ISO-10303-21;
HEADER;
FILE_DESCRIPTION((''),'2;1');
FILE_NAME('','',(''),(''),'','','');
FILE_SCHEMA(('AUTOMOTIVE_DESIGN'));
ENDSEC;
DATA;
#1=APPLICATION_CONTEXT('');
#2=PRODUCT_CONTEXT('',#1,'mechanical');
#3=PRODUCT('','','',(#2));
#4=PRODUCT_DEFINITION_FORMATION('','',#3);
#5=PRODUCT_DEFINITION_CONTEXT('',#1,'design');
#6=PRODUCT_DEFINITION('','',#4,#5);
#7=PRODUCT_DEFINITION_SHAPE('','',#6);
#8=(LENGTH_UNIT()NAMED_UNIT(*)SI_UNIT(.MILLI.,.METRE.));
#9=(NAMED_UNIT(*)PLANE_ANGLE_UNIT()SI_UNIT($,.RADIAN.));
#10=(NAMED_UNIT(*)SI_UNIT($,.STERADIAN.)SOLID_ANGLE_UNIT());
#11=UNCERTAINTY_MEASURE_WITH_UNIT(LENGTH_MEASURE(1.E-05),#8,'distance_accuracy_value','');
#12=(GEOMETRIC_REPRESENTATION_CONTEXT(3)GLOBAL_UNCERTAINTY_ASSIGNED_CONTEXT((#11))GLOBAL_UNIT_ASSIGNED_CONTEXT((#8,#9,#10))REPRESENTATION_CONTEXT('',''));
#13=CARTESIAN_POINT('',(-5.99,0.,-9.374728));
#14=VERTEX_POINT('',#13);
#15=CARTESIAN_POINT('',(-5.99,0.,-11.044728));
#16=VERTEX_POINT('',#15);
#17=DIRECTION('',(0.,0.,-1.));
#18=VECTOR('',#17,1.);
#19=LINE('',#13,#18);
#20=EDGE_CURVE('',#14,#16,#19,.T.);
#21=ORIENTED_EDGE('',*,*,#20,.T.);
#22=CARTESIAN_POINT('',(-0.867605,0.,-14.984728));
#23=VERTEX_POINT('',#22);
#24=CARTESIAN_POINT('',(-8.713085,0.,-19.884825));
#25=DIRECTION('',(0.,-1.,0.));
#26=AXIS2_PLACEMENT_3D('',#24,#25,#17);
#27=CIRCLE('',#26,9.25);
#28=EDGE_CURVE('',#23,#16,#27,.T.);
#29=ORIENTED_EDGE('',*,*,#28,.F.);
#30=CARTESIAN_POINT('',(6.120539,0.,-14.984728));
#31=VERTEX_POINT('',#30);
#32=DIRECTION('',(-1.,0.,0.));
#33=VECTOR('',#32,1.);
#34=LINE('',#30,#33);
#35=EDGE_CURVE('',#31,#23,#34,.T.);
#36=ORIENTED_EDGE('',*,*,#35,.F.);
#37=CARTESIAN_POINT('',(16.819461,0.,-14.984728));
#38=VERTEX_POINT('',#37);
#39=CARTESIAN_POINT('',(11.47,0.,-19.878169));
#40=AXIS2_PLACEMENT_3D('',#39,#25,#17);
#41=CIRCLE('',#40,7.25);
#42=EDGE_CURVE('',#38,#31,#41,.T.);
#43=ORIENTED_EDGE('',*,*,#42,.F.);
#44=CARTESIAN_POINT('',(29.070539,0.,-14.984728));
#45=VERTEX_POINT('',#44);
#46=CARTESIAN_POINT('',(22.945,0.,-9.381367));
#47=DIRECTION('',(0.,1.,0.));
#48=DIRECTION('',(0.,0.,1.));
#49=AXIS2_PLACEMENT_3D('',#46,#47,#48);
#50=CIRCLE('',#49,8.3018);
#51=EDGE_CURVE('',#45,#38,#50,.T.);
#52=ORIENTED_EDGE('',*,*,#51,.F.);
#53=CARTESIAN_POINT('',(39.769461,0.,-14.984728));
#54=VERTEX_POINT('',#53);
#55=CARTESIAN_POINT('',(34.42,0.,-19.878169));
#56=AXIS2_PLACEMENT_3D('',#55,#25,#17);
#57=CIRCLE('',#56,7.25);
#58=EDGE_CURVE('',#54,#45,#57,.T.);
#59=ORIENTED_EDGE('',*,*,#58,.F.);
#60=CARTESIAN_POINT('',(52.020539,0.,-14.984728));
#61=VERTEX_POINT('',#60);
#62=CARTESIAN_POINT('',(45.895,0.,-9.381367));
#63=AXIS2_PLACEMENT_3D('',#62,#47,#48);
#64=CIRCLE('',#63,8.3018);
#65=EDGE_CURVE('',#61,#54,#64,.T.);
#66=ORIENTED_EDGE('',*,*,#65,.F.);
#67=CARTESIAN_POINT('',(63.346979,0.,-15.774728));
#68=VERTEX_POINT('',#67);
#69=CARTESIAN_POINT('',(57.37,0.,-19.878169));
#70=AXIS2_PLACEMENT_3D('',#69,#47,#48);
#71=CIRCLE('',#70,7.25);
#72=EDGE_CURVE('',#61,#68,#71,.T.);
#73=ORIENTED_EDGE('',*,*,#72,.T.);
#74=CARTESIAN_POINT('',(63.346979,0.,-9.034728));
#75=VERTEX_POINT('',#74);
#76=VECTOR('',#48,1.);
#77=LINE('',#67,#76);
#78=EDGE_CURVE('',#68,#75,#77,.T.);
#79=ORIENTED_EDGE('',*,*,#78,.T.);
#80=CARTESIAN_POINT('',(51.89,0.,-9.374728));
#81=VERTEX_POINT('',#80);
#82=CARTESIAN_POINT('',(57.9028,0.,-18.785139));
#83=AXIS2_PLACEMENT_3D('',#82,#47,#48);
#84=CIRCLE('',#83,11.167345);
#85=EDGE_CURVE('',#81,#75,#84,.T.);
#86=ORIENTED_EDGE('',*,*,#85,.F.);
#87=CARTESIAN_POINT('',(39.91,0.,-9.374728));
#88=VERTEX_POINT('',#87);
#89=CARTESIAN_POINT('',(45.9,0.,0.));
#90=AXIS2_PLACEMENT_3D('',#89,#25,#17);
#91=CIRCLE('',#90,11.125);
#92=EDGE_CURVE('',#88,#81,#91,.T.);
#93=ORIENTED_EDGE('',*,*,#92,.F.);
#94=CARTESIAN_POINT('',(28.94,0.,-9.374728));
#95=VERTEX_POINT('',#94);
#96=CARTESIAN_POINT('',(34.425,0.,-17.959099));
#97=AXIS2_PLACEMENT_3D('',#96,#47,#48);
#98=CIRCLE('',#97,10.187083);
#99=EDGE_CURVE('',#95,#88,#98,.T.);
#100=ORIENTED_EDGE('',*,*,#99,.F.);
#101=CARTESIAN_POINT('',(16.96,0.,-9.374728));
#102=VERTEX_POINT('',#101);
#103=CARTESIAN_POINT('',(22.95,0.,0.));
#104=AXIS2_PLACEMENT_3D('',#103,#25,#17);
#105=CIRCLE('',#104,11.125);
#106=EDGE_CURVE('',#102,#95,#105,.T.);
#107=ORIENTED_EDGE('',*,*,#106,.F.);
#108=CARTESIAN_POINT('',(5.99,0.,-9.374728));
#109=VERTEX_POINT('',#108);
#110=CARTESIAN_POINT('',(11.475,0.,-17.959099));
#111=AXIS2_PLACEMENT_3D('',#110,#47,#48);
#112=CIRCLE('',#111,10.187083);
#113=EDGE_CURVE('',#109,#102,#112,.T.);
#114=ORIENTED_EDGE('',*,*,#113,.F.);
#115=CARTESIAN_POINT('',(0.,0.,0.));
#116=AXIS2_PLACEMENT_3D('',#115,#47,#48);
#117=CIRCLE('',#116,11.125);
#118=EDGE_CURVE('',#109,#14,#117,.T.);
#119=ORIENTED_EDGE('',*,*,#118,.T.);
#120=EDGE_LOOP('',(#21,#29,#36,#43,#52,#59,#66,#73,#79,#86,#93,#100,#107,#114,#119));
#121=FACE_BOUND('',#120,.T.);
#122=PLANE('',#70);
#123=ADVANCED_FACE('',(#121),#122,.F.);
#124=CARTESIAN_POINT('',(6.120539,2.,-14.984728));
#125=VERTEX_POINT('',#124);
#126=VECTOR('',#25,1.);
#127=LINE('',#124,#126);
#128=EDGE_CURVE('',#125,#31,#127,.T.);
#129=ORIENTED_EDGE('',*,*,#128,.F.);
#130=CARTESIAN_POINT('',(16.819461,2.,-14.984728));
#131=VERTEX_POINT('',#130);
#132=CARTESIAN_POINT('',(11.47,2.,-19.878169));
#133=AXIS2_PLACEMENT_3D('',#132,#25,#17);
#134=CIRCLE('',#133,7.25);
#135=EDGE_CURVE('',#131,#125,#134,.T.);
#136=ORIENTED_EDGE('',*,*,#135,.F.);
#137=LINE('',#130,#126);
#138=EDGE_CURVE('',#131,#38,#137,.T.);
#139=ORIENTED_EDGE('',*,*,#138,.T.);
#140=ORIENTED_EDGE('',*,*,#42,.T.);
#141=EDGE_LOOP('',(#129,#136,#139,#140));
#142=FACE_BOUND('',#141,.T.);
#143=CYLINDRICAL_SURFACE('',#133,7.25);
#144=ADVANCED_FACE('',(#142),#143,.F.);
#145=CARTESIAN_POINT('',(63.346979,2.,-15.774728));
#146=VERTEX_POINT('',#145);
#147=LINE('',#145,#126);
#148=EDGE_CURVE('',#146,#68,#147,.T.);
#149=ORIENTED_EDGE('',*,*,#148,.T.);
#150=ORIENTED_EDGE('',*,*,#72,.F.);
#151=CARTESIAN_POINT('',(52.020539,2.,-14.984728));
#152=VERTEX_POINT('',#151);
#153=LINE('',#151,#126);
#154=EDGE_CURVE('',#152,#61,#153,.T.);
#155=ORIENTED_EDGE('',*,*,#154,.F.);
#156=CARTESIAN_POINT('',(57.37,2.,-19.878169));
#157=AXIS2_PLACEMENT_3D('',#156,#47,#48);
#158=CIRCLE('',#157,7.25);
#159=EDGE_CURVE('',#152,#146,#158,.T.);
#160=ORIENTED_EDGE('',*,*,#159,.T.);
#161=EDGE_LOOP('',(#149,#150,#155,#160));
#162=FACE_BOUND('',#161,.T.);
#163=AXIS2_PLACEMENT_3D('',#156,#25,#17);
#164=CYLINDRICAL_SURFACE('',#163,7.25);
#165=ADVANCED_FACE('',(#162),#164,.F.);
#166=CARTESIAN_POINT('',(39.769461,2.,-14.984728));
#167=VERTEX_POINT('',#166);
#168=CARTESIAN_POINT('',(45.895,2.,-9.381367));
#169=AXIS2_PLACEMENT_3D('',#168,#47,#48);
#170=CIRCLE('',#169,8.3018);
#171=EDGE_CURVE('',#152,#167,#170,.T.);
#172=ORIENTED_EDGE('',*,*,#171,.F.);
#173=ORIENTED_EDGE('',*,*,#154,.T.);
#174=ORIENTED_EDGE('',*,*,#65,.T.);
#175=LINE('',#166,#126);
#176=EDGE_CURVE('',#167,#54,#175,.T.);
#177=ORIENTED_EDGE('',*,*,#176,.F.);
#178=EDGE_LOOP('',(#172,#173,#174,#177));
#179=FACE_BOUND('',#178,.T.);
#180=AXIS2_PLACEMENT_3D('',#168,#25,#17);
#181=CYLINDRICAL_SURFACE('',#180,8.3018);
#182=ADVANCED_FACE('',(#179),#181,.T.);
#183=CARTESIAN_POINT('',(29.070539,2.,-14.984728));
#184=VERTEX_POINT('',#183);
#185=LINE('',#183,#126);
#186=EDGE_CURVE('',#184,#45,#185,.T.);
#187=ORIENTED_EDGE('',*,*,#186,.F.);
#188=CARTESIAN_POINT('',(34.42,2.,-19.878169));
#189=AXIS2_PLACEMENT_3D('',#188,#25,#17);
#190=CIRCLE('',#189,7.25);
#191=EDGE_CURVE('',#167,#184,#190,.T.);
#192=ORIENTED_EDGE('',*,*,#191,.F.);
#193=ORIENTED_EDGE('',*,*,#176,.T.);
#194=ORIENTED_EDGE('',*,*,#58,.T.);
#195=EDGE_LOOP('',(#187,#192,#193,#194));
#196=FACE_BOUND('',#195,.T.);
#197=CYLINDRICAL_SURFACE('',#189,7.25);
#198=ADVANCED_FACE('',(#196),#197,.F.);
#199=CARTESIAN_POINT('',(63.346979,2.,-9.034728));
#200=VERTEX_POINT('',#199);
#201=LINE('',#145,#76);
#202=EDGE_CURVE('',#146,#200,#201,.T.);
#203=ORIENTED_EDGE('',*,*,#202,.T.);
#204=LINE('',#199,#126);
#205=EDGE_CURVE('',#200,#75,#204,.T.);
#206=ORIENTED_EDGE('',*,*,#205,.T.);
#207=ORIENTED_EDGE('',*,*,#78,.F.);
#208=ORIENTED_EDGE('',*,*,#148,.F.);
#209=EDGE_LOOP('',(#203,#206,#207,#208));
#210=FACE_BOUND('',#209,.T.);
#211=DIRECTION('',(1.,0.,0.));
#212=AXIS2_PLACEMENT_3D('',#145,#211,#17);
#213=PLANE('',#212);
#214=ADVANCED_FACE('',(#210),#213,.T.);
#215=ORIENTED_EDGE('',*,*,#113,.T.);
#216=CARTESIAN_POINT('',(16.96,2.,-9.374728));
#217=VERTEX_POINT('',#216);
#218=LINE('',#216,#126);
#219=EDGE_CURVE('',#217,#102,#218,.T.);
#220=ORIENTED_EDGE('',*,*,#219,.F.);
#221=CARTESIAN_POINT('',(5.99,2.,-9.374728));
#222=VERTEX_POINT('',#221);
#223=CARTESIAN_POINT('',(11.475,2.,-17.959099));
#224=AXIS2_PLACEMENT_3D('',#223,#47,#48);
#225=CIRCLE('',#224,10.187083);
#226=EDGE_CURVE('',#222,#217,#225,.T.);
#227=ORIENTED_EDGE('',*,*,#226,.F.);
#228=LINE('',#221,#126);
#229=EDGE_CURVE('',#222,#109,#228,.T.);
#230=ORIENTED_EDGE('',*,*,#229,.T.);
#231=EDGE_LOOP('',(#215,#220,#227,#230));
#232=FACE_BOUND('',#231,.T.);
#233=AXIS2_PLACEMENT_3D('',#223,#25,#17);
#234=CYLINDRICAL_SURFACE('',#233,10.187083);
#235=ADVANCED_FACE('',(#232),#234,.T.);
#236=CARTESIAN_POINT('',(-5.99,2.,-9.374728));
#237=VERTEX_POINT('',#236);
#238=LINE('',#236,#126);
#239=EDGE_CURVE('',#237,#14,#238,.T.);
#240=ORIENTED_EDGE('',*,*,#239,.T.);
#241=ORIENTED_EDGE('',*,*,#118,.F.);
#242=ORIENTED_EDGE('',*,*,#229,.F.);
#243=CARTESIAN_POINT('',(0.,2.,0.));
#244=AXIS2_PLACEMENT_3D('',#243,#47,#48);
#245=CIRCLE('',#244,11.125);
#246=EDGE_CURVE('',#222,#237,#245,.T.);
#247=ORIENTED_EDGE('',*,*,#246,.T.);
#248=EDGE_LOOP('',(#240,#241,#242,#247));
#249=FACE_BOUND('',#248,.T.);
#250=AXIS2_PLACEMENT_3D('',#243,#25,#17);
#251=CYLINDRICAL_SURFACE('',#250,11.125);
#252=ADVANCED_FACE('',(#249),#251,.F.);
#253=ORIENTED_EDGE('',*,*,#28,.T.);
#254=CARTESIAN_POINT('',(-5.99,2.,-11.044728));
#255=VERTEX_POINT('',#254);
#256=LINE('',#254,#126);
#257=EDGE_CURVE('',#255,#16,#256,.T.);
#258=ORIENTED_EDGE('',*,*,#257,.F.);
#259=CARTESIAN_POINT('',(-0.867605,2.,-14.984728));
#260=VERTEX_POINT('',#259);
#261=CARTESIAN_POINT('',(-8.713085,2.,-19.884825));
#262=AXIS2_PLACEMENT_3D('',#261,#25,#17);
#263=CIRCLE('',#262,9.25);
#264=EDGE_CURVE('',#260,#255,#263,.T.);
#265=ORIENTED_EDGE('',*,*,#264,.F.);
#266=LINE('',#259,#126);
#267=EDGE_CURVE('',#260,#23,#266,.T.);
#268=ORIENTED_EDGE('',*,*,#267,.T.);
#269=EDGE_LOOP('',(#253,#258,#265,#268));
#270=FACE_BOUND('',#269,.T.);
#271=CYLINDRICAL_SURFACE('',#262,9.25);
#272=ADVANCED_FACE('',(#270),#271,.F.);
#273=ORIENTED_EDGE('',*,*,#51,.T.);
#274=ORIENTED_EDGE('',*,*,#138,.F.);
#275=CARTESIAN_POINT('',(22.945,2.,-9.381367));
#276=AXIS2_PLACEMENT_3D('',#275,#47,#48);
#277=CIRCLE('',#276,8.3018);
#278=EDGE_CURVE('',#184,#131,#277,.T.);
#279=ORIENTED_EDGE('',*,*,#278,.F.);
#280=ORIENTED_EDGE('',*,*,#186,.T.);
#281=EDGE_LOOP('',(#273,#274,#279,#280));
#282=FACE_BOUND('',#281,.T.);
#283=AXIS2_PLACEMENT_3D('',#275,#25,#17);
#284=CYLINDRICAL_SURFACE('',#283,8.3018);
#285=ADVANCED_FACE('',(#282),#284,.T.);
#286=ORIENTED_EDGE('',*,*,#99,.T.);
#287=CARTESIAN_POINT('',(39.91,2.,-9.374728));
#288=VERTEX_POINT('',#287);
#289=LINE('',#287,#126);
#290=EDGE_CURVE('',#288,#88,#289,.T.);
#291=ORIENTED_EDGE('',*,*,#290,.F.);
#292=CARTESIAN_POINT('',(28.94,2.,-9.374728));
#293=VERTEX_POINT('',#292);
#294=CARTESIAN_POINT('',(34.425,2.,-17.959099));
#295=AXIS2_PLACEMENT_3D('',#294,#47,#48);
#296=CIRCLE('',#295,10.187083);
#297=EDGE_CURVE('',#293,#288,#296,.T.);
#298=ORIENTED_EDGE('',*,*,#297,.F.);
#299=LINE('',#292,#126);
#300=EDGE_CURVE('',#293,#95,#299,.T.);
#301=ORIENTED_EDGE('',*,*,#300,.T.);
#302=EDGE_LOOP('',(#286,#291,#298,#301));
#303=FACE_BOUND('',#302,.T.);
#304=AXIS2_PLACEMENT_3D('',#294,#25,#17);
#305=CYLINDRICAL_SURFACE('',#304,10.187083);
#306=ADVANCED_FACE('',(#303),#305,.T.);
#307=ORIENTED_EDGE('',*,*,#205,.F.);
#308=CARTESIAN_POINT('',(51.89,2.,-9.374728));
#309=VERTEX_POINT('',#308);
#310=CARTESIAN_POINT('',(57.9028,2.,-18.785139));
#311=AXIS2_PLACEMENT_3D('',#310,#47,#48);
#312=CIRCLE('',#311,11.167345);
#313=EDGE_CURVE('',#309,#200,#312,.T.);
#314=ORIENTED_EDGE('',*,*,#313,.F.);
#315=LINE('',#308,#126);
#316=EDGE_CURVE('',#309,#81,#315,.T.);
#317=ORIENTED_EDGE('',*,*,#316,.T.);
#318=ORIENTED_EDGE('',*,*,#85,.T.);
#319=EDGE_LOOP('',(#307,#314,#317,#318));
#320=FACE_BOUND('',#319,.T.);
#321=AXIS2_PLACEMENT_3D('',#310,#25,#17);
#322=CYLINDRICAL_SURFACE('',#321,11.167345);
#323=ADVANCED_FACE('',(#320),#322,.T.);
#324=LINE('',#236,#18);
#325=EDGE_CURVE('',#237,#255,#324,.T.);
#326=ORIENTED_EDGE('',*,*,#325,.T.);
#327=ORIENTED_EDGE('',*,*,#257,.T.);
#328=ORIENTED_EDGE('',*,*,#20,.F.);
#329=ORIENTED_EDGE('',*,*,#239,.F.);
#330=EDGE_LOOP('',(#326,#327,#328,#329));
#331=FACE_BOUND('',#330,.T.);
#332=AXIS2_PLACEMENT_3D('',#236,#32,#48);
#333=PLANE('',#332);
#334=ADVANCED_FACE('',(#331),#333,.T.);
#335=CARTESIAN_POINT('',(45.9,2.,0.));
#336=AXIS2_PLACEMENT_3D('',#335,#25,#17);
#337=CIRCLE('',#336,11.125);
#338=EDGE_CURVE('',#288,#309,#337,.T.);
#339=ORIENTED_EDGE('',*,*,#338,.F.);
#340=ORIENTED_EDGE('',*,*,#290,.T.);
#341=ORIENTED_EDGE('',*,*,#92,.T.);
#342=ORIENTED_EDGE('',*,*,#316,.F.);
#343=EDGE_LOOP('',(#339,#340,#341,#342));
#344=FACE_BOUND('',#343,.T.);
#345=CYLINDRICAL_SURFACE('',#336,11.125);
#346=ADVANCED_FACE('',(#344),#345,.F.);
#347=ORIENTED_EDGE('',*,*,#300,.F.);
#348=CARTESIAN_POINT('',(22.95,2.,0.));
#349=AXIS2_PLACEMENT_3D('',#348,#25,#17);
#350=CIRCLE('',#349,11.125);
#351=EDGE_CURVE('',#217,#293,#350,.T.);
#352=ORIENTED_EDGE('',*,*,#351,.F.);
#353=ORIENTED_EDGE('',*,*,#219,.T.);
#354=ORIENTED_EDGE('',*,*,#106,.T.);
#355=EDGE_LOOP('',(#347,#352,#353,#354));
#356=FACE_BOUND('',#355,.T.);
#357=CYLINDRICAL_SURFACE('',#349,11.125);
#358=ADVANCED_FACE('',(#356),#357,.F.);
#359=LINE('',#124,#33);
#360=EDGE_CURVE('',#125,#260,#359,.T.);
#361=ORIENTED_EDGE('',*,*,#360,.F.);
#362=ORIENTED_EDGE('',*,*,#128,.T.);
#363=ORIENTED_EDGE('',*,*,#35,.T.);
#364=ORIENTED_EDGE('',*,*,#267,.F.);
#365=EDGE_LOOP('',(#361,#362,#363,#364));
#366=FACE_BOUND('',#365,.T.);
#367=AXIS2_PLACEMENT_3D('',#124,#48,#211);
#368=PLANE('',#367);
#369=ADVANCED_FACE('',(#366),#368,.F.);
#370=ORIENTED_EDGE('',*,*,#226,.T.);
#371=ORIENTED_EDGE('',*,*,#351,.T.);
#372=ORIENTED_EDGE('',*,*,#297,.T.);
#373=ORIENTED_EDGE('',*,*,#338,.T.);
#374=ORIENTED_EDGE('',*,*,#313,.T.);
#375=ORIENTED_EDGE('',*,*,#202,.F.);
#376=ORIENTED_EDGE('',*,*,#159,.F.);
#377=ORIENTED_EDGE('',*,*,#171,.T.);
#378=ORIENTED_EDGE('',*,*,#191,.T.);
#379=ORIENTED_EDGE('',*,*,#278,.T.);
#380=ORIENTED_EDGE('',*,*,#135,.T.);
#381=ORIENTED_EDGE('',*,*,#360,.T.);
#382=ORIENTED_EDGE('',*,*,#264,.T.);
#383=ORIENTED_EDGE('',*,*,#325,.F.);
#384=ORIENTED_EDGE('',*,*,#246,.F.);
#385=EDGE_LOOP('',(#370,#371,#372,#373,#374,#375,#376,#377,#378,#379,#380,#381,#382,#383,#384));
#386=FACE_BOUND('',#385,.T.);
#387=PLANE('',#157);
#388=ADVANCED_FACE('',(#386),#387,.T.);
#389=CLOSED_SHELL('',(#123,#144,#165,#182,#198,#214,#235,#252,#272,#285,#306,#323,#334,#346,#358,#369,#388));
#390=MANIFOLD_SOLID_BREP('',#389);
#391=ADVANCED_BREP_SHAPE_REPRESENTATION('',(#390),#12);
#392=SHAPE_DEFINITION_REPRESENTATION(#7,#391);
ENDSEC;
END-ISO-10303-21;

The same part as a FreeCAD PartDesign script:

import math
import FreeCAD as App
import Part
import Sketcher
Q = App.Units.Quantity

doc = App.newDocument("Part")
body = doc.addObject("PartDesign::Body", "Body")

sketch1 = body.newObject("Sketcher::SketchObject", "Sketch")
sketch1.AttachmentSupport = (doc.getObject("XZ_Plane"), [""])
sketch1.MapMode = "FlatFace"
sketch1.addGeometry(Part.LineSegment(App.Vector(63.346979, -9.034728, 0), App.Vector(63.346979, -15.774728, 0)), False)
sketch1.addGeometry(Part.ArcOfCircle(Part.Circle(App.Vector(57.37, -19.878169, 0), App.Vector(0, 0, 1), 7.25), math.radians(34.471196), math.radians(137.54916)), False)
sketch1.addGeometry(Part.ArcOfCircle(Part.Circle(App.Vector(45.895, -9.381367, 0), App.Vector(0, 0, 1), 8.3018), math.radians(-137.54916), math.radians(-42.45084)), False)
sketch1.addGeometry(Part.ArcOfCircle(Part.Circle(App.Vector(34.42, -19.878169, 0), App.Vector(0, 0, 1), 7.25), math.radians(42.45084), math.radians(137.54916)), False)
sketch1.addGeometry(Part.ArcOfCircle(Part.Circle(App.Vector(22.945, -9.381367, 0), App.Vector(0, 0, 1), 8.3018), math.radians(-137.54916), math.radians(-42.45084)), False)
sketch1.addGeometry(Part.ArcOfCircle(Part.Circle(App.Vector(11.47, -19.878169, 0), App.Vector(0, 0, 1), 7.25), math.radians(42.45084), math.radians(137.54916)), False)
sketch1.addGeometry(Part.LineSegment(App.Vector(6.120539, -14.984728, 0), App.Vector(-0.867605, -14.984728, 0)), False)
sketch1.addGeometry(Part.ArcOfCircle(Part.Circle(App.Vector(-8.713085, -19.884825, 0), App.Vector(0, 0, 1), 9.25), math.radians(31.987901), math.radians(72.879183)), False)
sketch1.addGeometry(Part.LineSegment(App.Vector(-5.99, -11.044728, 0), App.Vector(-5.99, -9.374728, 0)), False)
sketch1.addGeometry(Part.ArcOfCircle(Part.Circle(App.Vector(0, 0, 0), App.Vector(0, 0, 1), 11.125), math.radians(-122.57662), math.radians(-57.42338)), False)
sketch1.addGeometry(Part.ArcOfCircle(Part.Circle(App.Vector(11.475, -17.959099, 0), App.Vector(0, 0, 1), 10.187083), math.radians(57.42338), math.radians(122.57662)), False)
sketch1.addGeometry(Part.ArcOfCircle(Part.Circle(App.Vector(22.95, 0, 0), App.Vector(0, 0, 1), 11.125), math.radians(-122.57662), math.radians(-57.42338)), False)
sketch1.addGeometry(Part.ArcOfCircle(Part.Circle(App.Vector(34.425, -17.959099, 0), App.Vector(0, 0, 1), 10.187083), math.radians(57.42338), math.radians(122.57662)), False)
sketch1.addGeometry(Part.ArcOfCircle(Part.Circle(App.Vector(45.9, 0, 0), App.Vector(0, 0, 1), 11.125), math.radians(-122.57662), math.radians(-57.42338)), False)
sketch1.addGeometry(Part.ArcOfCircle(Part.Circle(App.Vector(57.9028, -18.785139, 0), App.Vector(0, 0, 1), 11.167345), math.radians(60.823029), math.radians(122.57662)), False)
sketch1.addConstraint(Sketcher.Constraint("Coincident", 0, 2, 1, 1))
sketch1.addConstraint(Sketcher.Constraint("Tangent", 1, 2, 2, 2))
sketch1.addConstraint(Sketcher.Constraint("Tangent", 2, 1, 3, 1))
sketch1.addConstraint(Sketcher.Constraint("Tangent", 3, 2, 4, 2))
sketch1.addConstraint(Sketcher.Constraint("Tangent", 4, 1, 5, 1))
sketch1.addConstraint(Sketcher.Constraint("Coincident", 5, 2, 6, 1))
sketch1.addConstraint(Sketcher.Constraint("Coincident", 6, 2, 7, 1))
sketch1.addConstraint(Sketcher.Constraint("Coincident", 7, 2, 8, 1))
sketch1.addConstraint(Sketcher.Constraint("Coincident", 8, 2, 9, 1))
sketch1.addConstraint(Sketcher.Constraint("Tangent", 9, 2, 10, 2))
sketch1.addConstraint(Sketcher.Constraint("Tangent", 10, 1, 11, 1))
sketch1.addConstraint(Sketcher.Constraint("Tangent", 11, 2, 12, 2))
sketch1.addConstraint(Sketcher.Constraint("Tangent", 12, 1, 13, 1))
sketch1.addConstraint(Sketcher.Constraint("Tangent", 13, 2, 14, 2))
sketch1.addConstraint(Sketcher.Constraint("Coincident", 14, 1, 0, 1))
sketch1.addConstraint(Sketcher.Constraint("Vertical", 0))
sketch1.addConstraint(Sketcher.Constraint("Horizontal", 6))
sketch1.addConstraint(Sketcher.Constraint("Vertical", 8))
sketch1.addConstraint(Sketcher.Constraint("Coincident", 9, 3, -1, 1))
sketch1.addConstraint(Sketcher.Constraint("Equal", 1, 3))
sketch1.addConstraint(Sketcher.Constraint("Equal", 2, 4))
sketch1.addConstraint(Sketcher.Constraint("Equal", 3, 5))
sketch1.addConstraint(Sketcher.Constraint("Equal", 9, 11))
sketch1.addConstraint(Sketcher.Constraint("Equal", 10, 12))
sketch1.addConstraint(Sketcher.Constraint("Equal", 11, 13))
sketch1.addConstraint(Sketcher.Constraint("PointOnObject", 11, 3, -1))
sketch1.addConstraint(Sketcher.Constraint("PointOnObject", 13, 3, -1))
sketch1.addConstraint(Sketcher.Constraint("Horizontal", 1, 3, 3, 3))
sketch1.addConstraint(Sketcher.Constraint("Horizontal", 2, 3, 4, 3))
sketch1.addConstraint(Sketcher.Constraint("Horizontal", 3, 3, 5, 3))
sketch1.addConstraint(Sketcher.Constraint("Horizontal", 10, 3, 12, 3))
sketch1.addConstraint(Sketcher.Constraint("Horizontal", 4, 1, 5, 2))
sketch1.addConstraint(Sketcher.Constraint("Horizontal", 8, 2, 9, 2))
sketch1.addConstraint(Sketcher.Constraint("Horizontal", 12, 1, 13, 2))
sketch1.addConstraint(Sketcher.Constraint("Radius", 1, Q("7.25 mm")))
sketch1.addConstraint(Sketcher.Constraint("Radius", 7, Q("9.25 mm")))
sketch1.addConstraint(Sketcher.Constraint("Radius", 9, Q("11.125 mm")))
sketch1.addConstraint(Sketcher.Constraint("DistanceY", 0, 2, 0, 1, Q("6.74 mm")))
sketch1.addConstraint(Sketcher.Constraint("DistanceY", 8, 1, 8, 2, Q("1.67 mm")))
sketch1.addConstraint(Sketcher.Constraint("DistanceX", -1, 1, 13, 3, Q("45.9 mm")))
sketch1.addConstraint(Sketcher.Constraint("Radius", 2, Q("8.3018 mm")))
sketch1.addConstraint(Sketcher.Constraint("DistanceX", 5, 3, 1, 3, Q("45.9 mm")))
sketch1.addConstraint(Sketcher.Constraint("DistanceX", -1, 1, 1, 3, Q("57.37 mm")))
sketch1.addConstraint(Sketcher.Constraint("DistanceX", 7, 2, -1, 1, Q("5.99 mm")))
sketch1.addConstraint(Sketcher.Constraint("DistanceY", 0, 2, 1, 2, Q("0.79 mm")))
sketch1.addConstraint(Sketcher.Constraint("DistanceY", 6, 2, 7, 2, Q("3.94 mm")))
sketch1.addConstraint(Sketcher.Constraint("DistanceX", 6, 2, 6, 1, Q("6.988144 mm")))
pad1 = body.newObject("PartDesign::Pad", "Pad")
pad1.Profile = sketch1
pad1.Length = 2
pad1.Reversed = True

doc.recompute()
